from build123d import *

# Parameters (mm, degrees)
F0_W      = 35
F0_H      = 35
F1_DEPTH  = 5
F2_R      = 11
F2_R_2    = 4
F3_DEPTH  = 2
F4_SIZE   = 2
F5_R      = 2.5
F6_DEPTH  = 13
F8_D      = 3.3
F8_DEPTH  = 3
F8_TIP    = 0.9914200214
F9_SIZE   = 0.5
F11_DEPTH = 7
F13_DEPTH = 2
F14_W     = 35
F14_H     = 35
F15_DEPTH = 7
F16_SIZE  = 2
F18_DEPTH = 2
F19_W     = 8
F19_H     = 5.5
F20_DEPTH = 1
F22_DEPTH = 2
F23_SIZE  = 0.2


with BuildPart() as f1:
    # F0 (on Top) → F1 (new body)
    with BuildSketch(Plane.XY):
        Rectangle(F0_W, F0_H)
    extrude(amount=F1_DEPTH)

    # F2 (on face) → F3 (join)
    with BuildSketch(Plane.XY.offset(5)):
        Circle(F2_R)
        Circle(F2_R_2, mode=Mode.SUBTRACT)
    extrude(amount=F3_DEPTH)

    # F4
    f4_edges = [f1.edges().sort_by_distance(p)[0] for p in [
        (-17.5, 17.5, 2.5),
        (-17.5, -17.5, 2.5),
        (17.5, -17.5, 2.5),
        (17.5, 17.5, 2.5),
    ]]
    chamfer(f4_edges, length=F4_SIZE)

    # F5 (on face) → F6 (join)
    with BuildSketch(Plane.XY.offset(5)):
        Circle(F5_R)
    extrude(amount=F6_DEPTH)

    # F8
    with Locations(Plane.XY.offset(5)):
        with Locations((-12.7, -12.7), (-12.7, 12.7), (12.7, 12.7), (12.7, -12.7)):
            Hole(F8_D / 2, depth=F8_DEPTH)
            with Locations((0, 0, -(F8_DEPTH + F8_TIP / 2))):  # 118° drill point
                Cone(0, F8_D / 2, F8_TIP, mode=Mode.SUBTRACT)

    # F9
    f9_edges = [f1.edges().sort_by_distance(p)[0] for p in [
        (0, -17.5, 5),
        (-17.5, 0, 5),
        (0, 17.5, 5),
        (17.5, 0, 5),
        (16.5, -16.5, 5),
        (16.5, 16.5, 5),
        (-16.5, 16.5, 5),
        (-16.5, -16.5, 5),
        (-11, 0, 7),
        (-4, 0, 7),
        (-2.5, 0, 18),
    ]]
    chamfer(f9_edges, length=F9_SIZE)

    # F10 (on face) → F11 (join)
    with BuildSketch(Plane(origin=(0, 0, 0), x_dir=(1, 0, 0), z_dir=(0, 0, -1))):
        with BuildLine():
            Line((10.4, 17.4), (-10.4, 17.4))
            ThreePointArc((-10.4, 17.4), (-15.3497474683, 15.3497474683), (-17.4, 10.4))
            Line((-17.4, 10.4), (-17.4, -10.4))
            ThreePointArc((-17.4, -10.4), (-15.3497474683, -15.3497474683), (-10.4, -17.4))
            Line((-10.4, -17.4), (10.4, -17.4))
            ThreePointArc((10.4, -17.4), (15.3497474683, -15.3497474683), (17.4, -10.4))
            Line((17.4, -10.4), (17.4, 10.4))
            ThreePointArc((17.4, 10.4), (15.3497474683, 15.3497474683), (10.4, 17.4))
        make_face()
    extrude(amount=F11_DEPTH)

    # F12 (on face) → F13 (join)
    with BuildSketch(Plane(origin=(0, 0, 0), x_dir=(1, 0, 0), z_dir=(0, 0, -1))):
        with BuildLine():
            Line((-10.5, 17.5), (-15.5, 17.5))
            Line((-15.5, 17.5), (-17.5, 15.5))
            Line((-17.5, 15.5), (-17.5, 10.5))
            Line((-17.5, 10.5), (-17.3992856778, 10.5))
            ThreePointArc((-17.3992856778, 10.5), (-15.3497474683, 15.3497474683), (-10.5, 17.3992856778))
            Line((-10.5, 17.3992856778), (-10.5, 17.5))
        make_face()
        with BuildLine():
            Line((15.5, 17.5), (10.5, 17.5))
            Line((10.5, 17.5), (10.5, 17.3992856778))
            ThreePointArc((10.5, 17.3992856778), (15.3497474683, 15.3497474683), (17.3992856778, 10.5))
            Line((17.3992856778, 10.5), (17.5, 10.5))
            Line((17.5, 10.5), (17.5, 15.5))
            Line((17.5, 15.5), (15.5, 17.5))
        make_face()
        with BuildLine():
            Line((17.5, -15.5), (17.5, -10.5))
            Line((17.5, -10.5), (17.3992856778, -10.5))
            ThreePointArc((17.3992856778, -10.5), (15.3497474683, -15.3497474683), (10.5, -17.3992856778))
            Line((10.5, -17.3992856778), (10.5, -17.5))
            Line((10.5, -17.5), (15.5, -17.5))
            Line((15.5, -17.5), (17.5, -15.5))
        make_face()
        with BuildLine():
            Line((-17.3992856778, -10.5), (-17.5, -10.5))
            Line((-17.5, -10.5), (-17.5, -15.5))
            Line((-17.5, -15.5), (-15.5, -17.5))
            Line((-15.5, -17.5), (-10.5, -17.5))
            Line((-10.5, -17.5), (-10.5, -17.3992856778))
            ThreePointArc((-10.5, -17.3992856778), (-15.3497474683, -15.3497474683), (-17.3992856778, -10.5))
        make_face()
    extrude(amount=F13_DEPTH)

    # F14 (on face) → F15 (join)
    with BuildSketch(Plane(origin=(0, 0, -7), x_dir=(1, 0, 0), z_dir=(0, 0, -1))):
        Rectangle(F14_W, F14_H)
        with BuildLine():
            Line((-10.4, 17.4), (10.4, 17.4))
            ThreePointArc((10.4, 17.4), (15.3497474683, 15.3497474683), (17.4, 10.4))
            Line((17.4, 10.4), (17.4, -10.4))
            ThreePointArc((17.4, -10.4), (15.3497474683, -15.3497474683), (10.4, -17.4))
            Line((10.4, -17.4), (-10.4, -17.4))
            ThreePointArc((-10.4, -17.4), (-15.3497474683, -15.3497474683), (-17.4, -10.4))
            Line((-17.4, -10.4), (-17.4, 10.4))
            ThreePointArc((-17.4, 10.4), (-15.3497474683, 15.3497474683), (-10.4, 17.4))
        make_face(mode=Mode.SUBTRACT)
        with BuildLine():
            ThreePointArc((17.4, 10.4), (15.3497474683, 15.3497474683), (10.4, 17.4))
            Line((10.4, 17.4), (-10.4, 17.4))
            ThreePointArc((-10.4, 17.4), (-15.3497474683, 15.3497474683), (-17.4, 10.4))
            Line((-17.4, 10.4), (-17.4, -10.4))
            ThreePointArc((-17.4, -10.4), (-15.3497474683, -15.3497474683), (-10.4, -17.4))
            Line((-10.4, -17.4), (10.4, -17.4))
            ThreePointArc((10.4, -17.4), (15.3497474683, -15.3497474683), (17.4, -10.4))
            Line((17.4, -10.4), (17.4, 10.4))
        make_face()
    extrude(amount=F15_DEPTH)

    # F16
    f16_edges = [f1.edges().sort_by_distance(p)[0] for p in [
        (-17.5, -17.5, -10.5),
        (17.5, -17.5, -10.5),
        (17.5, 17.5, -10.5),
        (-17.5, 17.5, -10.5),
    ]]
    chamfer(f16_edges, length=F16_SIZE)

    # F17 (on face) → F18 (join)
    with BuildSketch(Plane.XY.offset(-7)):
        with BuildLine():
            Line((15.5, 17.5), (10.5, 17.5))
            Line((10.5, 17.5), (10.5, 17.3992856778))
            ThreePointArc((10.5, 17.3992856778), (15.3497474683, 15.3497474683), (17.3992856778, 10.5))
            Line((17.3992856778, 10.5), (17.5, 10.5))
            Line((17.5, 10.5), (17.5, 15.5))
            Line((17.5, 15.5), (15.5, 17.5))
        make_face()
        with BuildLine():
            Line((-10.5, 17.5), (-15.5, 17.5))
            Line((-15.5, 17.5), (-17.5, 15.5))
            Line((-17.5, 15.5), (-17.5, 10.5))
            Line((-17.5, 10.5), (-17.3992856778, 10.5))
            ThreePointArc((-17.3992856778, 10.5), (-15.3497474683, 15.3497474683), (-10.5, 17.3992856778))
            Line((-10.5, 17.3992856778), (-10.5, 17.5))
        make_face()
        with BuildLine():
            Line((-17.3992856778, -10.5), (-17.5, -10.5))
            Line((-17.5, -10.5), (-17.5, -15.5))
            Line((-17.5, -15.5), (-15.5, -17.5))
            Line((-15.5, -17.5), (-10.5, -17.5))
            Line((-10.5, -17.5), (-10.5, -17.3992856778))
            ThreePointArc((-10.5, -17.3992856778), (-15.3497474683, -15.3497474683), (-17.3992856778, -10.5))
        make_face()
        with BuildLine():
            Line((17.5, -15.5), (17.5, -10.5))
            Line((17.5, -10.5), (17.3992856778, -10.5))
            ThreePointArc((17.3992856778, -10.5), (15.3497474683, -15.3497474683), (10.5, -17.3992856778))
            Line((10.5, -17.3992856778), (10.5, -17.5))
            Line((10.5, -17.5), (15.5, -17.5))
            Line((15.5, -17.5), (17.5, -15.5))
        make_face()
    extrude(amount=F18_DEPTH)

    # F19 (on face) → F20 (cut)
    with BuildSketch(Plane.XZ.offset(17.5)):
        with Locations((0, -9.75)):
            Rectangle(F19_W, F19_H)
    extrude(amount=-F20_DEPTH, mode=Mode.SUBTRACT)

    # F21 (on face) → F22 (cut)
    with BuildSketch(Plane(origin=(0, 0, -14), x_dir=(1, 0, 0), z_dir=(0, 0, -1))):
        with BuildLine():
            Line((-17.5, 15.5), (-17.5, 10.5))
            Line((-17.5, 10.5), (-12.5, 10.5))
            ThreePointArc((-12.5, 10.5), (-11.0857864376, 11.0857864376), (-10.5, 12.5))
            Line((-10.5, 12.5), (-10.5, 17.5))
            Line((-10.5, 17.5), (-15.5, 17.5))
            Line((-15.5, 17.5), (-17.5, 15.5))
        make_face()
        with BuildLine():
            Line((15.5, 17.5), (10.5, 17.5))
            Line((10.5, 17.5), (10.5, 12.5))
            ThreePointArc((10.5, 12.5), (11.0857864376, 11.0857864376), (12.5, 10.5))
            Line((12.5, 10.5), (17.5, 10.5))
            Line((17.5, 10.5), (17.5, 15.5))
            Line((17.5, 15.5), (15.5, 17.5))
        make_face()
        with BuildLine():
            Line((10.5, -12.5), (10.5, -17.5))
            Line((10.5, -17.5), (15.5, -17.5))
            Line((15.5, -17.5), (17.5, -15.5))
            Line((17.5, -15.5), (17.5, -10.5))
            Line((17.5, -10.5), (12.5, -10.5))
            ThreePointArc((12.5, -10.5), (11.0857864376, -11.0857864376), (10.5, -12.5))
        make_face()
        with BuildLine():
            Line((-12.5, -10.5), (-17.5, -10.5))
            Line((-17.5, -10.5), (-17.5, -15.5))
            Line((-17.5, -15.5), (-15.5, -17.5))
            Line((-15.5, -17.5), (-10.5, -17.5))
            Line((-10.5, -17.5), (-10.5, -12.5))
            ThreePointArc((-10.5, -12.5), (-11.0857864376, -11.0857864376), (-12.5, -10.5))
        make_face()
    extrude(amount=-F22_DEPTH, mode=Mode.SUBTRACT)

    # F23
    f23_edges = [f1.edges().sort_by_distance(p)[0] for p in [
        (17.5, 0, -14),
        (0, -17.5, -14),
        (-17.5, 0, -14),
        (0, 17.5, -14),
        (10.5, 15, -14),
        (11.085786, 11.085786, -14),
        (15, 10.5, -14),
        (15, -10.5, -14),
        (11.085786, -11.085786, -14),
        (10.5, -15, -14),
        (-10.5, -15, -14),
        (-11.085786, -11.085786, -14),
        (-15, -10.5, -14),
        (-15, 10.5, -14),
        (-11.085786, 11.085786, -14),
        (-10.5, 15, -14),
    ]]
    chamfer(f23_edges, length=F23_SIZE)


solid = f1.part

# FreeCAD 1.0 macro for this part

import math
import FreeCAD as App
import Part
import Sketcher
from FreeCAD import Vector
Q = App.Units.Quantity


def edges_at(feature, points):
    """Names of the edges that pass closest to the given points."""
    edges = feature.Shape.Edges
    near = lambda p: min(range(len(edges)), key=lambda i: edges[i].distToShape(Part.Vertex(*p))[0])
    return sorted({f"Edge{near(p) + 1}" for p in points})


def add_polygon(sketch, points):
    """Adds a closed chain of lines whose ends are joined by coincident constraints."""
    first, n = sketch.GeometryCount, len(points)
    for a, b in zip(points, points[1:] + points[:1]):
        sketch.addGeometry(Part.LineSegment(App.Vector(*a, 0), App.Vector(*b, 0)), False)
    for i in range(n):
        sketch.addConstraint(Sketcher.Constraint("Coincident", first + i, 2, first + (i + 1) % n, 1))

doc = App.newDocument("Part")
params = doc.addObject("Spreadsheet::Sheet", "Params")
for row, (alias, value) in enumerate([
    ("sketch1_width", "35 mm"),
    ("pad1_length", "5 mm"),
    ("sketch2_diameter", "22 mm"),
    ("sketch2_diameter2", "8 mm"),
    ("pad2_length", "2 mm"),
    ("chamfer_size", "2 mm"),
    ("sketch3_diameter", "5 mm"),
    ("pad3_length", "13 mm"),
    ("sketch4_diameter", "3.3 mm"),
    ("hole_diameter", "3.3 mm"),
    ("hole_depth", "3 mm"),
    ("chamfer2_size", "0.5 mm"),
    ("sketch5_radius", "7 mm"),
    ("sketch5_width", "20.8 mm"),
    ("pad4_length", "7 mm"),
    ("sketch6_radius", "7 mm"),
    ("sketch6_width", "5 mm"),
    ("pad5_length", "2 mm"),
    ("sketch7_width", "35 mm"),
    ("pad6_length", "7 mm"),
    ("chamfer3_size", "2 mm"),
    ("sketch8_radius", "7 mm"),
    ("sketch8_width", "5 mm"),
    ("pad7_length", "2 mm"),
    ("sketch9_width", "8 mm"),
    ("sketch9_height", "5.5 mm"),
    ("pocket1_length", "1 mm"),
    ("sketch10_radius", "2 mm"),
    ("sketch10_width", "5 mm"),
    ("pocket2_length", "2 mm"),
    ("chamfer4_size", "0.2 mm"),
], start=1):
    params.set(f"A{row}", alias)
    params.set(f"B{row}", "=" + value)
    params.setAlias(f"B{row}", alias)

body = doc.addObject("PartDesign::Body", "Body")

sketch1 = body.newObject("Sketcher::SketchObject", "Sketch")
sketch1.AttachmentSupport = (doc.getObject("XY_Plane"), [""])
sketch1.MapMode = "FlatFace"
add_polygon(sketch1, [(-18, 18), (-18, -18), (18, -18), (18, 18)])
sketch1.addConstraint(Sketcher.Constraint("Vertical", 0))
sketch1.addConstraint(Sketcher.Constraint("Horizontal", 1))
sketch1.addConstraint(Sketcher.Constraint("Vertical", 2))
sketch1.addConstraint(Sketcher.Constraint("Horizontal", 3))
sketch1.addConstraint(Sketcher.Constraint("Symmetric", 0, 2, 2, 2, -1, 1))
sketch1.addConstraint(Sketcher.Constraint("Equal", 3, 0))
sketch1.addConstraint(Sketcher.Constraint("DistanceX", 1, 1, 1, 2, Q("35 mm")))
sketch1.setExpression("Constraints[10]", "Params.sketch1_width")
pad1 = body.newObject("PartDesign::Pad", "Pad")
pad1.Profile = sketch1
pad1.setExpression("Length", "Params.pad1_length")

sketch2 = body.newObject("Sketcher::SketchObject", "Sketch001")
sketch2.AttachmentSupport = (doc.getObject("XY_Plane"), [""])
sketch2.MapMode = "FlatFace"
sketch2.AttachmentOffset = App.Placement(Vector(0, 0, 5), App.Rotation())
sketch2.addGeometry(Part.Circle(Vector(0, 0, 0), Vector(0, 0, 1), 11), False)
sketch2.addGeometry(Part.Circle(Vector(0, 0, 0), Vector(0, 0, 1), 4), False)
sketch2.addConstraint(Sketcher.Constraint("Coincident", 0, 3, -1, 1))
sketch2.addConstraint(Sketcher.Constraint("Coincident", 1, 3, -1, 1))
sketch2.addConstraint(Sketcher.Constraint("Diameter", 0, Q("22 mm")))
sketch2.addConstraint(Sketcher.Constraint("Diameter", 1, Q("8 mm")))
sketch2.setExpression("Constraints[2]", "Params.sketch2_diameter")
sketch2.setExpression("Constraints[3]", "Params.sketch2_diameter2")
pad2 = body.newObject("PartDesign::Pad", "Pad001")
pad2.Profile = sketch2
pad2.setExpression("Length", "Params.pad2_length")
doc.recompute()

chamfer = body.newObject("PartDesign::Chamfer", "Chamfer")
chamfer.Base = (pad2, edges_at(pad2, [
    (-17.5, 17.5, 2.5),
    (-17.5, -17.5, 2.5),
    (17.5, -17.5, 2.5),
    (17.5, 17.5, 2.5),
]))
chamfer.setExpression("Size", "Params.chamfer_size")

sketch3 = body.newObject("Sketcher::SketchObject", "Sketch002")
sketch3.AttachmentSupport = (doc.getObject("XY_Plane"), [""])
sketch3.MapMode = "FlatFace"
sketch3.AttachmentOffset = App.Placement(Vector(0, 0, 5), App.Rotation())
sketch3.addGeometry(Part.Circle(Vector(0, 0, 0), Vector(0, 0, 1), 2.5), False)
sketch3.addConstraint(Sketcher.Constraint("Coincident", 0, 3, -1, 1))
sketch3.addConstraint(Sketcher.Constraint("Diameter", 0, Q("5 mm")))
sketch3.setExpression("Constraints[1]", "Params.sketch3_diameter")
pad3 = body.newObject("PartDesign::Pad", "Pad002")
pad3.Profile = sketch3
pad3.setExpression("Length", "Params.pad3_length")

sketch4 = body.newObject("Sketcher::SketchObject", "Sketch003")
sketch4.AttachmentSupport = (doc.getObject("XY_Plane"), [""])
sketch4.MapMode = "FlatFace"
sketch4.AttachmentOffset = App.Placement(Vector(0, 0, 5), App.Rotation())
sketch4.addGeometry(Part.Circle(Vector(-12.7, -12.7, 0), Vector(0, 0, 1), 1.6), False)
sketch4.addGeometry(Part.Circle(Vector(-12.7, 12.7, 0), Vector(0, 0, 1), 1.6), False)
sketch4.addGeometry(Part.Circle(Vector(12.7, 12.7, 0), Vector(0, 0, 1), 1.6), False)
sketch4.addGeometry(Part.Circle(Vector(12.7, -12.7, 0), Vector(0, 0, 1), 1.6), False)
sketch4.addConstraint(Sketcher.Constraint("Equal", 0, 1))
sketch4.addConstraint(Sketcher.Constraint("Equal", 1, 2))
sketch4.addConstraint(Sketcher.Constraint("Equal", 2, 3))
sketch4.addConstraint(Sketcher.Constraint("Symmetric", 0, 3, 2, 3, -1, 1))
sketch4.addConstraint(Sketcher.Constraint("Symmetric", 1, 3, 3, 3, -1, 1))
sketch4.addConstraint(Sketcher.Constraint("Symmetric", 1, 3, 2, 3, -2))
sketch4.addConstraint(Sketcher.Constraint("Diameter", 0, Q("3.3 mm")))
sketch4.addConstraint(Sketcher.Constraint("DistanceX", 0, 3, -1, 1, Q("12.7 mm")))
sketch4.addConstraint(Sketcher.Constraint("DistanceY", 0, 3, -1, 1, Q("12.7 mm")))
sketch4.setExpression("Constraints[6]", "Params.sketch4_diameter")
doc.recompute()
hole = body.newObject("PartDesign::Hole", "Hole")
hole.Profile = sketch4
hole.ThreadType = "None"
hole.setExpression("Diameter", "Params.hole_diameter")
hole.DepthType = "Dimension"
hole.setExpression("Depth", "Params.hole_depth")
hole.DrillPoint = "Angled"
hole.DrillPointAngle = 118
doc.recompute()

chamfer2 = body.newObject("PartDesign::Chamfer", "Chamfer001")
chamfer2.Base = (hole, edges_at(hole, [
    (0, -17.5, 5),
    (-17.5, 0, 5),
    (0, 17.5, 5),
    (17.5, 0, 5),
    (16.5, -16.5, 5),
    (16.5, 16.5, 5),
    (-16.5, 16.5, 5),
    (-16.5, -16.5, 5),
    (-11, 0, 7),
    (-4, 0, 7),
    (-2.5, 0, 18),
]))
chamfer2.setExpression("Size", "Params.chamfer2_size")

sketch5 = body.newObject("Sketcher::SketchObject", "Sketch004")
sketch5.AttachmentSupport = (doc.getObject("XY_Plane"), [""])
sketch5.MapMode = "FlatFace"
sketch5.addGeometry(Part.LineSegment(Vector(10, -17, 0), Vector(-10, -17, 0)), False)
sketch5.addGeometry(Part.ArcOfCircle(Part.Circle(Vector(-10, -10, 0), Vector(0, 0, 1), 7), math.radians(180), math.radians(270)), False)
sketch5.addGeometry(Part.LineSegment(Vector(-17, -10, 0), Vector(-17, 10, 0)), False)
sketch5.addGeometry(Part.ArcOfCircle(Part.Circle(Vector(-10, 10, 0), Vector(0, 0, 1), 7), math.radians(90), math.radians(180)), False)
sketch5.addGeometry(Part.LineSegment(Vector(-10, 17, 0), Vector(10, 17, 0)), False)
sketch5.addGeometry(Part.ArcOfCircle(Part.Circle(Vector(10, 10, 0), Vector(0, 0, 1), 7), math.radians(0), math.radians(90)), False)
sketch5.addGeometry(Part.LineSegment(Vector(17, 10, 0), Vector(17, -10, 0)), False)
sketch5.addGeometry(Part.ArcOfCircle(Part.Circle(Vector(10, -10, 0), Vector(0, 0, 1), 7), math.radians(-90), math.radians(0)), False)
sketch5.addConstraint(Sketcher.Constraint("Tangent", 0, 2, 1, 2))
sketch5.addConstraint(Sketcher.Constraint("Tangent", 1, 1, 2, 1))
sketch5.addConstraint(Sketcher.Constraint("Tangent", 2, 2, 3, 2))
sketch5.addConstraint(Sketcher.Constraint("Tangent", 3, 1, 4, 1))
sketch5.addConstraint(Sketcher.Constraint("Tangent", 4, 2, 5, 2))
sketch5.addConstraint(Sketcher.Constraint("Tangent", 5, 1, 6, 1))
sketch5.addConstraint(Sketcher.Constraint("Tangent", 6, 2, 7, 2))
sketch5.addConstraint(Sketcher.Constraint("Tangent", 7, 1, 0, 1))
sketch5.addConstraint(Sketcher.Constraint("Horizontal", 0))
sketch5.addConstraint(Sketcher.Constraint("Vertical", 2))
sketch5.addConstraint(Sketcher.Constraint("Horizontal", 4))
sketch5.addConstraint(Sketcher.Constraint("Vertical", 6))
sketch5.addConstraint(Sketcher.Constraint("Equal", 1, 3))
sketch5.addConstraint(Sketcher.Constraint("Equal", 3, 5))
sketch5.addConstraint(Sketcher.Constraint("Equal", 5, 7))
sketch5.addConstraint(Sketcher.Constraint("Symmetric", 1, 3, 5, 3, -1, 1))
sketch5.addConstraint(Sketcher.Constraint("Equal", 4, 2))
sketch5.addConstraint(Sketcher.Constraint("Radius", 1, Q("7 mm")))
sketch5.addConstraint(Sketcher.Constraint("DistanceX", 0, 2, 0, 1, Q("20.8 mm")))
sketch5.setExpression("Constraints[17]", "Params.sketch5_radius")
sketch5.setExpression("Constraints[18]", "Params.sketch5_width")
pad4 = body.newObject("PartDesign::Pad", "Pad003")
pad4.Profile = sketch5
pad4.setExpression("Length", "Params.pad4_length")
pad4.Reversed = True

sketch6 = body.newObject("Sketcher::SketchObject", "Sketch005")
sketch6.AttachmentSupport = (doc.getObject("XY_Plane"), [""])
sketch6.MapMode = "FlatFace"
sketch6.addGeometry(Part.LineSegment(Vector(-10.5, -17.5, 0), Vector(-15.5, -17.5, 0)), False)
sketch6.addGeometry(Part.LineSegment(Vector(-15.5, -17.5, 0), Vector(-17.5, -15.5, 0)), False)
sketch6.addGeometry(Part.LineSegment(Vector(-17.5, -15.5, 0), Vector(-17.5, -10.5, 0)), False)
sketch6.addGeometry(Part.LineSegment(Vector(-17.5, -10.5, 0), Vector(-17.4, -10.5, 0)), False)
sketch6.addGeometry(Part.ArcOfCircle(Part.Circle(Vector(-10.4, -10.4, 0), Vector(0, 0, 1), 7), math.radians(-179), math.radians(-91)), False)
sketch6.addGeometry(Part.LineSegment(Vector(-10.5, -17.4, 0), Vector(-10.5, -17.5, 0)), False)
sketch6.addGeometry(Part.LineSegment(Vector(15.5, -17.5, 0), Vector(10.5, -17.5, 0)), False)
sketch6.addGeometry(Part.LineSegment(Vector(10.5, -17.5, 0), Vector(10.5, -17.4, 0)), False)
sketch6.addGeometry(Part.ArcOfCircle(Part.Circle(Vector(10.4, -10.4, 0), Vector(0, 0, 1), 7), math.radians(-89), math.radians(-1)), False)
sketch6.addGeometry(Part.LineSegment(Vector(17.4, -10.5, 0), Vector(17.5, -10.5, 0)), False)
sketch6.addGeometry(Part.LineSegment(Vector(17.5, -10.5, 0), Vector(17.5, -15.5, 0)), False)
sketch6.addGeometry(Part.LineSegment(Vector(17.5, -15.5, 0), Vector(15.5, -17.5, 0)), False)
sketch6.addGeometry(Part.LineSegment(Vector(17.5, 15.5, 0), Vector(17.5, 10.5, 0)), False)
sketch6.addGeometry(Part.LineSegment(Vector(17.5, 10.5, 0), Vector(17.4, 10.5, 0)), False)
sketch6.addGeometry(Part.ArcOfCircle(Part.Circle(Vector(10.4, 10.4, 0), Vector(0, 0, 1), 7), math.radians(1), math.radians(89)), False)
sketch6.addGeometry(Part.LineSegment(Vector(10.5, 17.4, 0), Vector(10.5, 17.5, 0)), False)
sketch6.addGeometry(Part.LineSegment(Vector(10.5, 17.5, 0), Vector(15.5, 17.5, 0)), False)
sketch6.addGeometry(Part.LineSegment(Vector(15.5, 17.5, 0), Vector(17.5, 15.5, 0)), False)
sketch6.addGeometry(Part.LineSegment(Vector(-17.4, 10.5, 0), Vector(-17.5, 10.5, 0)), False)
sketch6.addGeometry(Part.LineSegment(Vector(-17.5, 10.5, 0), Vector(-17.5, 15.5, 0)), False)
sketch6.addGeometry(Part.LineSegment(Vector(-17.5, 15.5, 0), Vector(-15.5, 17.5, 0)), False)
sketch6.addGeometry(Part.LineSegment(Vector(-15.5, 17.5, 0), Vector(-10.5, 17.5, 0)), False)
sketch6.addGeometry(Part.LineSegment(Vector(-10.5, 17.5, 0), Vector(-10.5, 17.4, 0)), False)
sketch6.addGeometry(Part.ArcOfCircle(Part.Circle(Vector(-10.4, 10.4, 0), Vector(0, 0, 1), 7), math.radians(91), math.radians(179)), False)
sketch6.addConstraint(Sketcher.Constraint("Coincident", 0, 2, 1, 1))
sketch6.addConstraint(Sketcher.Constraint("Coincident", 1, 2, 2, 1))
sketch6.addConstraint(Sketcher.Constraint("Coincident", 2, 2, 3, 1))
sketch6.addConstraint(Sketcher.Constraint("Coincident", 3, 2, 4, 1))
sketch6.addConstraint(Sketcher.Constraint("Coincident", 4, 2, 5, 1))
sketch6.addConstraint(Sketcher.Constraint("Coincident", 5, 2, 0, 1))
sketch6.addConstraint(Sketcher.Constraint("Coincident", 6, 2, 7, 1))
sketch6.addConstraint(Sketcher.Constraint("Coincident", 7, 2, 8, 1))
sketch6.addConstraint(Sketcher.Constraint("Coincident", 8, 2, 9, 1))
sketch6.addConstraint(Sketcher.Constraint("Coincident", 9, 2, 10, 1))
sketch6.addConstraint(Sketcher.Constraint("Coincident", 10, 2, 11, 1))
sketch6.addConstraint(Sketcher.Constraint("Coincident", 11, 2, 6, 1))
sketch6.addConstraint(Sketcher.Constraint("Coincident", 12, 2, 13, 1))
sketch6.addConstraint(Sketcher.Constraint("Coincident", 13, 2, 14, 1))
sketch6.addConstraint(Sketcher.Constraint("Coincident", 14, 2, 15, 1))
sketch6.addConstraint(Sketcher.Constraint("Coincident", 15, 2, 16, 1))
sketch6.addConstraint(Sketcher.Constraint("Coincident", 16, 2, 17, 1))
sketch6.addConstraint(Sketcher.Constraint("Coincident", 17, 2, 12, 1))
sketch6.addConstraint(Sketcher.Constraint("Coincident", 18, 2, 19, 1))
sketch6.addConstraint(Sketcher.Constraint("Coincident", 19, 2, 20, 1))
sketch6.addConstraint(Sketcher.Constraint("Coincident", 20, 2, 21, 1))
sketch6.addConstraint(Sketcher.Constraint("Coincident", 21, 2, 22, 1))
sketch6.addConstraint(Sketcher.Constraint("Coincident", 22, 2, 23, 1))
sketch6.addConstraint(Sketcher.Constraint("Coincident", 23, 2, 18, 1))
sketch6.addConstraint(Sketcher.Constraint("Horizontal", 0))
sketch6.addConstraint(Sketcher.Constraint("Vertical", 2))
sketch6.addConstraint(Sketcher.Constraint("Horizontal", 3))
sketch6.addConstraint(Sketcher.Constraint("Vertical", 5))
sketch6.addConstraint(Sketcher.Constraint("Horizontal", 6))
sketch6.addConstraint(Sketcher.Constraint("Vertical", 7))
sketch6.addConstraint(Sketcher.Constraint("Horizontal", 9))
sketch6.addConstraint(Sketcher.Constraint("Vertical", 10))
sketch6.addConstraint(Sketcher.Constraint("Vertical", 12))
sketch6.addConstraint(Sketcher.Constraint("Horizontal", 13))
sketch6.addConstraint(Sketcher.Constraint("Vertical", 15))
sketch6.addConstraint(Sketcher.Constraint("Horizontal", 16))
sketch6.addConstraint(Sketcher.Constraint("Horizontal", 18))
sketch6.addConstraint(Sketcher.Constraint("Vertical", 19))
sketch6.addConstraint(Sketcher.Constraint("Horizontal", 21))
sketch6.addConstraint(Sketcher.Constraint("Vertical", 22))
sketch6.addConstraint(Sketcher.Constraint("Equal", 4, 8))
sketch6.addConstraint(Sketcher.Constraint("Equal", 8, 14))
sketch6.addConstraint(Sketcher.Constraint("Equal", 14, 23))
sketch6.addConstraint(Sketcher.Constraint("Symmetric", 4, 3, 14, 3, -1, 1))
sketch6.addConstraint(Sketcher.Constraint("Symmetric", 8, 3, 23, 3, -1, 1))
sketch6.addConstraint(Sketcher.Constraint("Symmetric", 2, 2, 12, 2, -1, 1))
sketch6.addConstraint(Sketcher.Constraint("Symmetric", 5, 2, 15, 2, -1, 1))
sketch6.addConstraint(Sketcher.Constraint("Symmetric", 9, 2, 18, 2, -1, 1))
sketch6.addConstraint(Sketcher.Constraint("Symmetric", 11, 2, 20, 2, -1, 1))
sketch6.addConstraint(Sketcher.Constraint("Symmetric", 4, 3, 8, 3, -2))
sketch6.addConstraint(Sketcher.Constraint("Symmetric", 5, 2, 6, 2, -2))
sketch6.addConstraint(Sketcher.Constraint("Symmetric", 2, 2, 9, 2, -2))
sketch6.addConstraint(Sketcher.Constraint("Perpendicular", 1, 11))
sketch6.addConstraint(Sketcher.Constraint("Perpendicular", 11, 17))
sketch6.addConstraint(Sketcher.Constraint("Perpendicular", 17, 20))
sketch6.addConstraint(Sketcher.Constraint("Horizontal", 1, 2, 10, 2))
sketch6.addConstraint(Sketcher.Constraint("Horizontal", 17, 2, 19, 2))
sketch6.addConstraint(Sketcher.Constraint("Horizontal", 14, 2, 22, 2))
sketch6.addConstraint(Sketcher.Constraint("Vertical", 11, 2, 16, 2))
sketch6.addConstraint(Sketcher.Constraint("Equal", 21, 2))
sketch6.addConstraint(Sketcher.Constraint("Equal", 18, 5))
sketch6.addConstraint(Sketcher.Constraint("Radius", 4, Q("7 mm")))
sketch6.addConstraint(Sketcher.Constraint("DistanceX", 0, 2, 0, 1, Q("5 mm")))
sketch6.addConstraint(Sketcher.Constraint("DistanceX", 1, 2, 0, 2, Q("2 mm")))
sketch6.addConstraint(Sketcher.Constraint("DistanceX", 5, 2, 6, 2, Q("21 mm")))
sketch6.addConstraint(Sketcher.Constraint("DistanceY", 9, 2, 12, 2, Q("21 mm")))
sketch6.addConstraint(Sketcher.Constraint("DistanceX", 4, 3, -1, 1, Q("10.4 mm")))
sketch6.setExpression("Constraints[61]", "Params.sketch6_radius")
sketch6.setExpression("Constraints[62]", "Params.sketch6_width")
pad5 = body.newObject("PartDesign::Pad", "Pad004")
pad5.Profile = sketch6
pad5.setExpression("Length", "Params.pad5_length")
pad5.Reversed = True

sketch7 = body.newObject("Sketcher::SketchObject", "Sketch006")
sketch7.AttachmentSupport = (doc.getObject("XY_Plane"), [""])
sketch7.MapMode = "FlatFace"
sketch7.AttachmentOffset = App.Placement(Vector(0, 0, -7), App.Rotation())
add_polygon(sketch7, [(-18, -18), (-18, 18), (18, 18), (18, -18)])
sketch7.addConstraint(Sketcher.Constraint("Vertical", 0))
sketch7.addConstraint(Sketcher.Constraint("Horizontal", 1))
sketch7.addConstraint(Sketcher.Constraint("Vertical", 2))
sketch7.addConstraint(Sketcher.Constraint("Horizontal", 3))
sketch7.addConstraint(Sketcher.Constraint("Symmetric", 0, 2, 2, 2, -1, 1))
sketch7.addConstraint(Sketcher.Constraint("Equal", 3, 0))
sketch7.addConstraint(Sketcher.Constraint("DistanceX", 1, 1, 1, 2, Q("35 mm")))
sketch7.setExpression("Constraints[10]", "Params.sketch7_width")
pad6 = body.newObject("PartDesign::Pad", "Pad005")
pad6.Profile = sketch7
pad6.setExpression("Length", "Params.pad6_length")
pad6.Reversed = True
doc.recompute()

chamfer3 = body.newObject("PartDesign::Chamfer", "Chamfer002")
chamfer3.Base = (pad6, edges_at(pad6, [
    (-17.5, -17.5, -10.5),
    (17.5, -17.5, -10.5),
    (17.5, 17.5, -10.5),
    (-17.5, 17.5, -10.5),
]))
chamfer3.setExpression("Size", "Params.chamfer3_size")

sketch8 = body.newObject("Sketcher::SketchObject", "Sketch007")
sketch8.AttachmentSupport = (doc.getObject("XY_Plane"), [""])
sketch8.MapMode = "FlatFace"
sketch8.AttachmentOffset = App.Placement(Vector(0, 0, -7), App.Rotation())
sketch8.addGeometry(Part.LineSegment(Vector(15.5, 17.5, 0), Vector(10.5, 17.5, 0)), False)
sketch8.addGeometry(Part.LineSegment(Vector(10.5, 17.5, 0), Vector(10.5, 17.4, 0)), False)
sketch8.addGeometry(Part.ArcOfCircle(Part.Circle(Vector(10.4, 10.4, 0), Vector(0, 0, 1), 7), math.radians(1), math.radians(89)), False)
sketch8.addGeometry(Part.LineSegment(Vector(17.4, 10.5, 0), Vector(17.5, 10.5, 0)), False)
sketch8.addGeometry(Part.LineSegment(Vector(17.5, 10.5, 0), Vector(17.5, 15.5, 0)), False)
sketch8.addGeometry(Part.LineSegment(Vector(17.5, 15.5, 0), Vector(15.5, 17.5, 0)), False)
sketch8.addGeometry(Part.LineSegment(Vector(-10.5, 17.5, 0), Vector(-15.5, 17.5, 0)), False)
sketch8.addGeometry(Part.LineSegment(Vector(-15.5, 17.5, 0), Vector(-17.5, 15.5, 0)), False)
sketch8.addGeometry(Part.LineSegment(Vector(-17.5, 15.5, 0), Vector(-17.5, 10.5, 0)), False)
sketch8.addGeometry(Part.LineSegment(Vector(-17.5, 10.5, 0), Vector(-17.4, 10.5, 0)), False)
sketch8.addGeometry(Part.ArcOfCircle(Part.Circle(Vector(-10.4, 10.4, 0), Vector(0, 0, 1), 7), math.radians(91), math.radians(179)), False)
sketch8.addGeometry(Part.LineSegment(Vector(-10.5, 17.4, 0), Vector(-10.5, 17.5, 0)), False)
sketch8.addGeometry(Part.LineSegment(Vector(-17.4, -10.5, 0), Vector(-17.5, -10.5, 0)), False)
sketch8.addGeometry(Part.LineSegment(Vector(-17.5, -10.5, 0), Vector(-17.5, -15.5, 0)), False)
sketch8.addGeometry(Part.LineSegment(Vector(-17.5, -15.5, 0), Vector(-15.5, -17.5, 0)), False)
sketch8.addGeometry(Part.LineSegment(Vector(-15.5, -17.5, 0), Vector(-10.5, -17.5, 0)), False)
sketch8.addGeometry(Part.LineSegment(Vector(-10.5, -17.5, 0), Vector(-10.5, -17.4, 0)), False)
sketch8.addGeometry(Part.ArcOfCircle(Part.Circle(Vector(-10.4, -10.4, 0), Vector(0, 0, 1), 7), math.radians(-179), math.radians(-91)), False)
sketch8.addGeometry(Part.LineSegment(Vector(17.5, -15.5, 0), Vector(17.5, -10.5, 0)), False)
sketch8.addGeometry(Part.LineSegment(Vector(17.5, -10.5, 0), Vector(17.4, -10.5, 0)), False)
sketch8.addGeometry(Part.ArcOfCircle(Part.Circle(Vector(10.4, -10.4, 0), Vector(0, 0, 1), 7), math.radians(-89), math.radians(-1)), False)
sketch8.addGeometry(Part.LineSegment(Vector(10.5, -17.4, 0), Vector(10.5, -17.5, 0)), False)
sketch8.addGeometry(Part.LineSegment(Vector(10.5, -17.5, 0), Vector(15.5, -17.5, 0)), False)
sketch8.addGeometry(Part.LineSegment(Vector(15.5, -17.5, 0), Vector(17.5, -15.5, 0)), False)
sketch8.addConstraint(Sketcher.Constraint("Coincident", 0, 2, 1, 1))
sketch8.addConstraint(Sketcher.Constraint("Coincident", 1, 2, 2, 2))
sketch8.addConstraint(Sketcher.Constraint("Coincident", 2, 1, 3, 1))
sketch8.addConstraint(Sketcher.Constraint("Coincident", 3, 2, 4, 1))
sketch8.addConstraint(Sketcher.Constraint("Coincident", 4, 2, 5, 1))
sketch8.addConstraint(Sketcher.Constraint("Coincident", 5, 2, 0, 1))
sketch8.addConstraint(Sketcher.Constraint("Coincident", 6, 2, 7, 1))
sketch8.addConstraint(Sketcher.Constraint("Coincident", 7, 2, 8, 1))
sketch8.addConstraint(Sketcher.Constraint("Coincident", 8, 2, 9, 1))
sketch8.addConstraint(Sketcher.Constraint("Coincident", 9, 2, 10, 2))
sketch8.addConstraint(Sketcher.Constraint("Coincident", 10, 1, 11, 1))
sketch8.addConstraint(Sketcher.Constraint("Coincident", 11, 2, 6, 1))
sketch8.addConstraint(Sketcher.Constraint("Coincident", 12, 2, 13, 1))
sketch8.addConstraint(Sketcher.Constraint("Coincident", 13, 2, 14, 1))
sketch8.addConstraint(Sketcher.Constraint("Coincident", 14, 2, 15, 1))
sketch8.addConstraint(Sketcher.Constraint("Coincident", 15, 2, 16, 1))
sketch8.addConstraint(Sketcher.Constraint("Coincident", 16, 2, 17, 2))
sketch8.addConstraint(Sketcher.Constraint("Coincident", 17, 1, 12, 1))
sketch8.addConstraint(Sketcher.Constraint("Coincident", 18, 2, 19, 1))
sketch8.addConstraint(Sketcher.Constraint("Coincident", 19, 2, 20, 2))
sketch8.addConstraint(Sketcher.Constraint("Coincident", 20, 1, 21, 1))
sketch8.addConstraint(Sketcher.Constraint("Coincident", 21, 2, 22, 1))
sketch8.addConstraint(Sketcher.Constraint("Coincident", 22, 2, 23, 1))
sketch8.addConstraint(Sketcher.Constraint("Coincident", 23, 2, 18, 1))
sketch8.addConstraint(Sketcher.Constraint("Horizontal", 0))
sketch8.addConstraint(Sketcher.Constraint("Vertical", 1))
sketch8.addConstraint(Sketcher.Constraint("Horizontal", 3))
sketch8.addConstraint(Sketcher.Constraint("Vertical", 4))
sketch8.addConstraint(Sketcher.Constraint("Horizontal", 6))
sketch8.addConstraint(Sketcher.Constraint("Vertical", 8))
sketch8.addConstraint(Sketcher.Constraint("Horizontal", 9))
sketch8.addConstraint(Sketcher.Constraint("Vertical", 11))
sketch8.addConstraint(Sketcher.Constraint("Horizontal", 12))
sketch8.addConstraint(Sketcher.Constraint("Vertical", 13))
sketch8.addConstraint(Sketcher.Constraint("Horizontal", 15))
sketch8.addConstraint(Sketcher.Constraint("Vertical", 16))
sketch8.addConstraint(Sketcher.Constraint("Vertical", 18))
sketch8.addConstraint(Sketcher.Constraint("Horizontal", 19))
sketch8.addConstraint(Sketcher.Constraint("Vertical", 21))
sketch8.addConstraint(Sketcher.Constraint("Horizontal", 22))
sketch8.addConstraint(Sketcher.Constraint("Equal", 2, 10))
sketch8.addConstraint(Sketcher.Constraint("Equal", 10, 17))
sketch8.addConstraint(Sketcher.Constraint("Equal", 17, 20))
sketch8.addConstraint(Sketcher.Constraint("Symmetric", 2, 3, 17, 3, -1, 1))
sketch8.addConstraint(Sketcher.Constraint("Symmetric", 10, 3, 20, 3, -1, 1))
sketch8.addConstraint(Sketcher.Constraint("Symmetric", 3, 2, 12, 2, -1, 1))
sketch8.addConstraint(Sketcher.Constraint("Symmetric", 5, 2, 14, 2, -1, 1))
sketch8.addConstraint(Sketcher.Constraint("Symmetric", 8, 2, 18, 2, -1, 1))
sketch8.addConstraint(Sketcher.Constraint("Symmetric", 11, 2, 21, 2, -1, 1))
sketch8.addConstraint(Sketcher.Constraint("Symmetric", 2, 3, 10, 3, -2))
sketch8.addConstraint(Sketcher.Constraint("Symmetric", 5, 2, 6, 2, -2))
sketch8.addConstraint(Sketcher.Constraint("Symmetric", 4, 2, 7, 2, -2))
sketch8.addConstraint(Sketcher.Constraint("Perpendicular", 5, 7))
sketch8.addConstraint(Sketcher.Constraint("Perpendicular", 7, 14))
sketch8.addConstraint(Sketcher.Constraint("Perpendicular", 14, 23))
sketch8.addConstraint(Sketcher.Constraint("Horizontal", 3, 2, 8, 2))
sketch8.addConstraint(Sketcher.Constraint("Horizontal", 1, 2, 10, 1))
sketch8.addConstraint(Sketcher.Constraint("Horizontal", 16, 2, 20, 1))
sketch8.addConstraint(Sketcher.Constraint("Horizontal", 13, 2, 23, 2))
sketch8.addConstraint(Sketcher.Constraint("Equal", 19, 1))
sketch8.addConstraint(Sketcher.Constraint("Equal", 22, 4))
sketch8.addConstraint(Sketcher.Constraint("Radius", 2, Q("7 mm")))
sketch8.addConstraint(Sketcher.Constraint("DistanceX", 0, 2, 0, 1, Q("5 mm")))
sketch8.addConstraint(Sketcher.Constraint("DistanceY", 2, 1, 0, 2, Q("7 mm")))
sketch8.addConstraint(Sketcher.Constraint("DistanceX", 6, 2, 0, 2, Q("26 mm")))
sketch8.addConstraint(Sketcher.Constraint("DistanceY", 12, 2, 8, 2, Q("21 mm")))
sketch8.addConstraint(Sketcher.Constraint("DistanceX", -1, 1, 2, 3, Q("10.4 mm")))
sketch8.setExpression("Constraints[61]", "Params.sketch8_radius")
sketch8.setExpression("Constraints[62]", "Params.sketch8_width")
pad7 = body.newObject("PartDesign::Pad", "Pad006")
pad7.Profile = sketch8
pad7.setExpression("Length", "Params.pad7_length")

sketch9 = body.newObject("Sketcher::SketchObject", "Sketch008")
sketch9.AttachmentSupport = (doc.getObject("XZ_Plane"), [""])
sketch9.MapMode = "FlatFace"
sketch9.AttachmentOffset = App.Placement(Vector(0, 0, 17.5), App.Rotation())
add_polygon(sketch9, [(-4, -7), (-4, -12), (4, -12), (4, -7)])
sketch9.addConstraint(Sketcher.Constraint("Vertical", 0))
sketch9.addConstraint(Sketcher.Constraint("Horizontal", 1))
sketch9.addConstraint(Sketcher.Constraint("Vertical", 2))
sketch9.addConstraint(Sketcher.Constraint("Horizontal", 3))
sketch9.addConstraint(Sketcher.Constraint("DistanceX", 1, 1, 1, 2, Q("8 mm")))
sketch9.addConstraint(Sketcher.Constraint("DistanceY", 0, 2, 0, 1, Q("5.5 mm")))
sketch9.addConstraint(Sketcher.Constraint("DistanceX", 0, 2, -1, 1, Q("4 mm")))
sketch9.addConstraint(Sketcher.Constraint("DistanceY", 2, 2, -1, 1, Q("7 mm")))
sketch9.setExpression("Constraints[8]", "Params.sketch9_width")
sketch9.setExpression("Constraints[9]", "Params.sketch9_height")
pocket1 = body.newObject("PartDesign::Pocket", "Pocket")
pocket1.Profile = sketch9
pocket1.setExpression("Length", "Params.pocket1_length")

sketch10 = body.newObject("Sketcher::SketchObject", "Sketch009")
sketch10.AttachmentSupport = (doc.getObject("XY_Plane"), [""])
sketch10.MapMode = "FlatFace"
sketch10.AttachmentOffset = App.Placement(Vector(0, 0, -14), App.Rotation())
sketch10.addGeometry(Part.LineSegment(Vector(-17.5, -15.5, 0), Vector(-17.5, -10.5, 0)), False)
sketch10.addGeometry(Part.LineSegment(Vector(-17.5, -10.5, 0), Vector(-12.5, -10.5, 0)), False)
sketch10.addGeometry(Part.ArcOfCircle(Part.Circle(Vector(-12.5, -12.5, 0), Vector(0, 0, 1), 2), math.radians(0), math.radians(90)), False)
sketch10.addGeometry(Part.LineSegment(Vector(-10.5, -12.5, 0), Vector(-10.5, -17.5, 0)), False)
sketch10.addGeometry(Part.LineSegment(Vector(-10.5, -17.5, 0), Vector(-15.5, -17.5, 0)), False)
sketch10.addGeometry(Part.LineSegment(Vector(-15.5, -17.5, 0), Vector(-17.5, -15.5, 0)), False)
sketch10.addGeometry(Part.LineSegment(Vector(15.5, -17.5, 0), Vector(10.5, -17.5, 0)), False)
sketch10.addGeometry(Part.LineSegment(Vector(10.5, -17.5, 0), Vector(10.5, -12.5, 0)), False)
sketch10.addGeometry(Part.ArcOfCircle(Part.Circle(Vector(12.5, -12.5, 0), Vector(0, 0, 1), 2), math.radians(90), math.radians(180)), False)
sketch10.addGeometry(Part.LineSegment(Vector(12.5, -10.5, 0), Vector(17.5, -10.5, 0)), False)
sketch10.addGeometry(Part.LineSegment(Vector(17.5, -10.5, 0), Vector(17.5, -15.5, 0)), False)
sketch10.addGeometry(Part.LineSegment(Vector(17.5, -15.5, 0), Vector(15.5, -17.5, 0)), False)
sketch10.addGeometry(Part.LineSegment(Vector(10.5, 12.5, 0), Vector(10.5, 17.5, 0)), False)
sketch10.addGeometry(Part.LineSegment(Vector(10.5, 17.5, 0), Vector(15.5, 17.5, 0)), False)
sketch10.addGeometry(Part.LineSegment(Vector(15.5, 17.5, 0), Vector(17.5, 15.5, 0)), False)
sketch10.addGeometry(Part.LineSegment(Vector(17.5, 15.5, 0), Vector(17.5, 10.5, 0)), False)
sketch10.addGeometry(Part.LineSegment(Vector(17.5, 10.5, 0), Vector(12.5, 10.5, 0)), False)
sketch10.addGeometry(Part.ArcOfCircle(Part.Circle(Vector(12.5, 12.5, 0), Vector(0, 0, 1), 2), math.radians(180), math.radians(270)), False)
sketch10.addGeometry(Part.LineSegment(Vector(-12.5, 10.5, 0), Vector(-17.5, 10.5, 0)), False)
sketch10.addGeometry(Part.LineSegment(Vector(-17.5, 10.5, 0), Vector(-17.5, 15.5, 0)), False)
sketch10.addGeometry(Part.LineSegment(Vector(-17.5, 15.5, 0), Vector(-15.5, 17.5, 0)), False)
sketch10.addGeometry(Part.LineSegment(Vector(-15.5, 17.5, 0), Vector(-10.5, 17.5, 0)), False)
sketch10.addGeometry(Part.LineSegment(Vector(-10.5, 17.5, 0), Vector(-10.5, 12.5, 0)), False)
sketch10.addGeometry(Part.ArcOfCircle(Part.Circle(Vector(-12.5, 12.5, 0), Vector(0, 0, 1), 2), math.radians(-90), math.radians(0)), False)
sketch10.addConstraint(Sketcher.Constraint("Coincident", 0, 2, 1, 1))
sketch10.addConstraint(Sketcher.Constraint("Tangent", 1, 2, 2, 2))
sketch10.addConstraint(Sketcher.Constraint("Tangent", 2, 1, 3, 1))
sketch10.addConstraint(Sketcher.Constraint("Coincident", 3, 2, 4, 1))
sketch10.addConstraint(Sketcher.Constraint("Coincident", 4, 2, 5, 1))
sketch10.addConstraint(Sketcher.Constraint("Coincident", 5, 2, 0, 1))
sketch10.addConstraint(Sketcher.Constraint("Coincident", 6, 2, 7, 1))
sketch10.addConstraint(Sketcher.Constraint("Tangent", 7, 2, 8, 2))
sketch10.addConstraint(Sketcher.Constraint("Tangent", 8, 1, 9, 1))
sketch10.addConstraint(Sketcher.Constraint("Coincident", 9, 2, 10, 1))
sketch10.addConstraint(Sketcher.Constraint("Coincident", 10, 2, 11, 1))
sketch10.addConstraint(Sketcher.Constraint("Coincident", 11, 2, 6, 1))
sketch10.addConstraint(Sketcher.Constraint("Coincident", 12, 2, 13, 1))
sketch10.addConstraint(Sketcher.Constraint("Coincident", 13, 2, 14, 1))
sketch10.addConstraint(Sketcher.Constraint("Coincident", 14, 2, 15, 1))
sketch10.addConstraint(Sketcher.Constraint("Coincident", 15, 2, 16, 1))
sketch10.addConstraint(Sketcher.Constraint("Tangent", 16, 2, 17, 2))
sketch10.addConstraint(Sketcher.Constraint("Tangent", 17, 1, 12, 1))
sketch10.addConstraint(Sketcher.Constraint("Coincident", 18, 2, 19, 1))
sketch10.addConstraint(Sketcher.Constraint("Coincident", 19, 2, 20, 1))
sketch10.addConstraint(Sketcher.Constraint("Coincident", 20, 2, 21, 1))
sketch10.addConstraint(Sketcher.Constraint("Coincident", 21, 2, 22, 1))
sketch10.addConstraint(Sketcher.Constraint("Tangent", 22, 2, 23, 2))
sketch10.addConstraint(Sketcher.Constraint("Tangent", 23, 1, 18, 1))
sketch10.addConstraint(Sketcher.Constraint("Vertical", 0))
sketch10.addConstraint(Sketcher.Constraint("Horizontal", 1))
sketch10.addConstraint(Sketcher.Constraint("Vertical", 3))
sketch10.addConstraint(Sketcher.Constraint("Horizontal", 4))
sketch10.addConstraint(Sketcher.Constraint("Horizontal", 6))
sketch10.addConstraint(Sketcher.Constraint("Vertical", 7))
sketch10.addConstraint(Sketcher.Constraint("Horizontal", 9))
sketch10.addConstraint(Sketcher.Constraint("Vertical", 10))
sketch10.addConstraint(Sketcher.Constraint("Vertical", 12))
sketch10.addConstraint(Sketcher.Constraint("Horizontal", 13))
sketch10.addConstraint(Sketcher.Constraint("Vertical", 15))
sketch10.addConstraint(Sketcher.Constraint("Horizontal", 16))
sketch10.addConstraint(Sketcher.Constraint("Horizontal", 18))
sketch10.addConstraint(Sketcher.Constraint("Vertical", 19))
sketch10.addConstraint(Sketcher.Constraint("Horizontal", 21))
sketch10.addConstraint(Sketcher.Constraint("Vertical", 22))
sketch10.addConstraint(Sketcher.Constraint("Equal", 2, 8))
sketch10.addConstraint(Sketcher.Constraint("Equal", 8, 17))
sketch10.addConstraint(Sketcher.Constraint("Equal", 17, 23))
sketch10.addConstraint(Sketcher.Constraint("Symmetric", 2, 3, 17, 3, -1, 1))
sketch10.addConstraint(Sketcher.Constraint("Symmetric", 8, 3, 23, 3, -1, 1))
sketch10.addConstraint(Sketcher.Constraint("Symmetric", 4, 2, 13, 2, -1, 1))
sketch10.addConstraint(Sketcher.Constraint("Symmetric", 5, 2, 14, 2, -1, 1))
sketch10.addConstraint(Sketcher.Constraint("Symmetric", 10, 2, 19, 2, -1, 1))
sketch10.addConstraint(Sketcher.Constraint("Symmetric", 11, 2, 20, 2, -1, 1))
sketch10.addConstraint(Sketcher.Constraint("Symmetric", 2, 3, 8, 3, -2))
sketch10.addConstraint(Sketcher.Constraint("Symmetric", 5, 2, 10, 2, -2))
sketch10.addConstraint(Sketcher.Constraint("Symmetric", 4, 2, 11, 2, -2))
sketch10.addConstraint(Sketcher.Constraint("Perpendicular", 5, 11))
sketch10.addConstraint(Sketcher.Constraint("Equal", 1, 4))
sketch10.addConstraint(Sketcher.Constraint("Equal", 21, 0))
sketch10.addConstraint(Sketcher.Constraint("Radius", 2, Q("2 mm")))
sketch10.addConstraint(Sketcher.Constraint("DistanceX", 1, 1, 1, 2, Q("5 mm")))
sketch10.addConstraint(Sketcher.Constraint("DistanceX", 2, 3, 8, 3, Q("25 mm")))
sketch10.addConstraint(Sketcher.Constraint("DistanceY", 8, 3, 17, 3, Q("25 mm")))
sketch10.setExpression("Constraints[55]", "Params.sketch10_radius")
sketch10.setExpression("Constraints[56]", "Params.sketch10_width")
pocket2 = body.newObject("PartDesign::Pocket", "Pocket001")
pocket2.Profile = sketch10
pocket2.setExpression("Length", "Params.pocket2_length")
pocket2.Reversed = True
doc.recompute()

chamfer4 = body.newObject("PartDesign::Chamfer", "Chamfer003")
chamfer4.Base = (pocket2, edges_at(pocket2, [
    (17.5, 0, -14),
    (0, -17.5, -14),
    (-17.5, 0, -14),
    (0, 17.5, -14),
    (10.5, 15, -14),
    (11.086, 11.086, -14),
    (15, 10.5, -14),
    (15, -10.5, -14),
    (11.086, -11.086, -14),
    (10.5, -15, -14),
    (-10.5, -15, -14),
    (-11.086, -11.086, -14),
    (-15, -10.5, -14),
    (-15, 10.5, -14),
    (-11.086, 11.086, -14),
    (-10.5, 15, -14),
]))
chamfer4.setExpression("Size", "Params.chamfer4_size")

doc.recompute()
